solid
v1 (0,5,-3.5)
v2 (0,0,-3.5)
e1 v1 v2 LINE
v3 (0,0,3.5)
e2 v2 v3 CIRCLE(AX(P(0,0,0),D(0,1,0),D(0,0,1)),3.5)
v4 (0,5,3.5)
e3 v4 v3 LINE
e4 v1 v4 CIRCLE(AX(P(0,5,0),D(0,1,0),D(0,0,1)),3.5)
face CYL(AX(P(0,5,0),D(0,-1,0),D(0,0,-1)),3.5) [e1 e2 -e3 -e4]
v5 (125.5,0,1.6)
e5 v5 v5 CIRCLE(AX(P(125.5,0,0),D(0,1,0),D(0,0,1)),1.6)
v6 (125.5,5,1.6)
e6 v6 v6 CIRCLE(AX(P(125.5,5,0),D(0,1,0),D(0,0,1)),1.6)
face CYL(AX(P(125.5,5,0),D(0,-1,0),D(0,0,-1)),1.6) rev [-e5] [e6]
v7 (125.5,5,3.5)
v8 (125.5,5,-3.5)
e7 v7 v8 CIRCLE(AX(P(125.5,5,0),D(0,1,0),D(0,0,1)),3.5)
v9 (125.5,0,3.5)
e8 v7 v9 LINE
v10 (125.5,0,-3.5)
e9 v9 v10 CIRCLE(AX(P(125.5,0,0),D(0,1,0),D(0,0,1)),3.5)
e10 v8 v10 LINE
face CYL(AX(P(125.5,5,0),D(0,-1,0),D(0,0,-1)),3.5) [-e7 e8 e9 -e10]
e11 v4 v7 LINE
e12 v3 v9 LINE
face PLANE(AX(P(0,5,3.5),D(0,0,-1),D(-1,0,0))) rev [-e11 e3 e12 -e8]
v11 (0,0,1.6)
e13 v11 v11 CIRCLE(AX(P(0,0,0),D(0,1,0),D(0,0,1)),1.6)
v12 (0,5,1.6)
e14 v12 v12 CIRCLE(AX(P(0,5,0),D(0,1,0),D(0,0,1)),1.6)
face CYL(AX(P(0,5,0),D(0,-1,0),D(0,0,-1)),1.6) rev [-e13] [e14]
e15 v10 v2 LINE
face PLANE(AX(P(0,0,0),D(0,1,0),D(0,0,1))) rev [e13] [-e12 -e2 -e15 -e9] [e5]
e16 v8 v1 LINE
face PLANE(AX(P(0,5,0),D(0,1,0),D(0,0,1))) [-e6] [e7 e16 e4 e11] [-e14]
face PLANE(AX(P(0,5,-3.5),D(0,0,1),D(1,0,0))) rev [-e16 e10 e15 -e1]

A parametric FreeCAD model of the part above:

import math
import FreeCAD as App
import Part
import Sketcher
from FreeCAD import Vector

doc = App.newDocument("Part")
params = doc.addObject("Spreadsheet::Sheet", "Params")
for row, (alias, value) in enumerate([
    ("sketch1_diameter", "3.2 mm"),
    ("sketch1_radius", "3.5 mm"),
    ("sketch1_width", "125.5 mm"),
    ("pad1_length", "5 mm"),
], start=1):
    params.set(f"A{row}", alias)
    params.set(f"B{row}", "=" + value)
    params.setAlias(f"B{row}", alias)

body = doc.addObject("PartDesign::Body", "Body")

sketch1 = body.newObject("Sketcher::SketchObject", "Sketch")
sketch1.AttachmentSupport = (doc.getObject("XZ_Plane"), [""])
sketch1.MapMode = "FlatFace"
sketch1.addGeometry([
    Part.LineSegment(Vector(125.5, -3.5, 0), Vector(0, -3.5, 0)),
    Part.ArcOfCircle(Part.Circle(Vector(0, 0, 0), Vector(0, 0, 1), 3.5), math.radians(90), math.radians(270)),
    Part.LineSegment(Vector(0, 3.5, 0), Vector(125.5, 3.5, 0)),
    Part.ArcOfCircle(Part.Circle(Vector(125.5, 0, 0), Vector(0, 0, 1), 3.5), math.radians(-90), math.radians(90)),
    Part.Circle(Vector(125.5, 0, 0), Vector(0, 0, 1), 1.6),
    Part.Circle(Vector(0, 0, 0), Vector(0, 0, 1), 1.6),
], False)
sketch1.addConstraint([
    Sketcher.Constraint("Tangent", 0, 2, 1, 2),
    Sketcher.Constraint("Tangent", 1, 1, 2, 1),
    Sketcher.Constraint("Tangent", 2, 2, 3, 2),
    Sketcher.Constraint("Tangent", 3, 1, 0, 1),
    Sketcher.Constraint("Horizontal", 0),
    Sketcher.Constraint("Horizontal", 2),
    Sketcher.Constraint("Coincident", 1, 3, -1, 1),
    Sketcher.Constraint("Coincident", 5, 3, -1, 1),
    Sketcher.Constraint("Coincident", 4, 3, 3, 3),
    Sketcher.Constraint("Equal", 4, 5),
    Sketcher.Constraint("Diameter", 4, 3.2),
    Sketcher.Constraint("Radius", 1, 3.5),
    Sketcher.Constraint("DistanceX", 0, 2, 0, 1, 125.5),
])
sketch1.setExpression("Constraints[10]", "Params.sketch1_diameter")
sketch1.setExpression("Constraints[11]", "Params.sketch1_radius")
sketch1.setExpression("Constraints[12]", "Params.sketch1_width")
pad1 = body.newObject("PartDesign::Pad", "Pad")
pad1.Profile = sketch1
pad1.setExpression("Length", "Params.pad1_length")
pad1.Reversed = True

doc.recompute()
